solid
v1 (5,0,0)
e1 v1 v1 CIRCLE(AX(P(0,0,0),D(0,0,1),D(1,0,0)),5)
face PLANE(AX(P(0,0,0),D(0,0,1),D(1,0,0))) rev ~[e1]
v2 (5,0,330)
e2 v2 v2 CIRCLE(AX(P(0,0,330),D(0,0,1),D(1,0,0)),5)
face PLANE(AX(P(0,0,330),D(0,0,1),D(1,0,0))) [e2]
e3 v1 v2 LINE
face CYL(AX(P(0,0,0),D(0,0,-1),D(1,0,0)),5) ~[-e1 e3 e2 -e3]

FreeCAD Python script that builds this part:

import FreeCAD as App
import Part
import Sketcher
from FreeCAD import Vector
Q = App.Units.Quantity

doc = App.newDocument("Part")
body = doc.addObject("PartDesign::Body", "Body")

# Sketch on XY plane
sketch1 = doc.addObject("Sketcher::SketchObject", "Sketch")
body.addObject(sketch1)
sketch1.AttachmentSupport = (doc.XY_Plane, [""])
sketch1.MapMode = "FlatFace"
sketch1.addGeometry(Part.Circle(Vector(0, 0, 0), Vector(0, 0, 1), 5), False)
sketch1.addConstraint(Sketcher.Constraint("Coincident", 0, 3, -1, 1))
sketch1.addConstraint(Sketcher.Constraint("Diameter", 0, Q("10 mm")))
pad1 = doc.addObject("PartDesign::Pad", "Pad")
body.addObject(pad1)
pad1.Profile = sketch1
pad1.Length = 330

doc.recompute()
